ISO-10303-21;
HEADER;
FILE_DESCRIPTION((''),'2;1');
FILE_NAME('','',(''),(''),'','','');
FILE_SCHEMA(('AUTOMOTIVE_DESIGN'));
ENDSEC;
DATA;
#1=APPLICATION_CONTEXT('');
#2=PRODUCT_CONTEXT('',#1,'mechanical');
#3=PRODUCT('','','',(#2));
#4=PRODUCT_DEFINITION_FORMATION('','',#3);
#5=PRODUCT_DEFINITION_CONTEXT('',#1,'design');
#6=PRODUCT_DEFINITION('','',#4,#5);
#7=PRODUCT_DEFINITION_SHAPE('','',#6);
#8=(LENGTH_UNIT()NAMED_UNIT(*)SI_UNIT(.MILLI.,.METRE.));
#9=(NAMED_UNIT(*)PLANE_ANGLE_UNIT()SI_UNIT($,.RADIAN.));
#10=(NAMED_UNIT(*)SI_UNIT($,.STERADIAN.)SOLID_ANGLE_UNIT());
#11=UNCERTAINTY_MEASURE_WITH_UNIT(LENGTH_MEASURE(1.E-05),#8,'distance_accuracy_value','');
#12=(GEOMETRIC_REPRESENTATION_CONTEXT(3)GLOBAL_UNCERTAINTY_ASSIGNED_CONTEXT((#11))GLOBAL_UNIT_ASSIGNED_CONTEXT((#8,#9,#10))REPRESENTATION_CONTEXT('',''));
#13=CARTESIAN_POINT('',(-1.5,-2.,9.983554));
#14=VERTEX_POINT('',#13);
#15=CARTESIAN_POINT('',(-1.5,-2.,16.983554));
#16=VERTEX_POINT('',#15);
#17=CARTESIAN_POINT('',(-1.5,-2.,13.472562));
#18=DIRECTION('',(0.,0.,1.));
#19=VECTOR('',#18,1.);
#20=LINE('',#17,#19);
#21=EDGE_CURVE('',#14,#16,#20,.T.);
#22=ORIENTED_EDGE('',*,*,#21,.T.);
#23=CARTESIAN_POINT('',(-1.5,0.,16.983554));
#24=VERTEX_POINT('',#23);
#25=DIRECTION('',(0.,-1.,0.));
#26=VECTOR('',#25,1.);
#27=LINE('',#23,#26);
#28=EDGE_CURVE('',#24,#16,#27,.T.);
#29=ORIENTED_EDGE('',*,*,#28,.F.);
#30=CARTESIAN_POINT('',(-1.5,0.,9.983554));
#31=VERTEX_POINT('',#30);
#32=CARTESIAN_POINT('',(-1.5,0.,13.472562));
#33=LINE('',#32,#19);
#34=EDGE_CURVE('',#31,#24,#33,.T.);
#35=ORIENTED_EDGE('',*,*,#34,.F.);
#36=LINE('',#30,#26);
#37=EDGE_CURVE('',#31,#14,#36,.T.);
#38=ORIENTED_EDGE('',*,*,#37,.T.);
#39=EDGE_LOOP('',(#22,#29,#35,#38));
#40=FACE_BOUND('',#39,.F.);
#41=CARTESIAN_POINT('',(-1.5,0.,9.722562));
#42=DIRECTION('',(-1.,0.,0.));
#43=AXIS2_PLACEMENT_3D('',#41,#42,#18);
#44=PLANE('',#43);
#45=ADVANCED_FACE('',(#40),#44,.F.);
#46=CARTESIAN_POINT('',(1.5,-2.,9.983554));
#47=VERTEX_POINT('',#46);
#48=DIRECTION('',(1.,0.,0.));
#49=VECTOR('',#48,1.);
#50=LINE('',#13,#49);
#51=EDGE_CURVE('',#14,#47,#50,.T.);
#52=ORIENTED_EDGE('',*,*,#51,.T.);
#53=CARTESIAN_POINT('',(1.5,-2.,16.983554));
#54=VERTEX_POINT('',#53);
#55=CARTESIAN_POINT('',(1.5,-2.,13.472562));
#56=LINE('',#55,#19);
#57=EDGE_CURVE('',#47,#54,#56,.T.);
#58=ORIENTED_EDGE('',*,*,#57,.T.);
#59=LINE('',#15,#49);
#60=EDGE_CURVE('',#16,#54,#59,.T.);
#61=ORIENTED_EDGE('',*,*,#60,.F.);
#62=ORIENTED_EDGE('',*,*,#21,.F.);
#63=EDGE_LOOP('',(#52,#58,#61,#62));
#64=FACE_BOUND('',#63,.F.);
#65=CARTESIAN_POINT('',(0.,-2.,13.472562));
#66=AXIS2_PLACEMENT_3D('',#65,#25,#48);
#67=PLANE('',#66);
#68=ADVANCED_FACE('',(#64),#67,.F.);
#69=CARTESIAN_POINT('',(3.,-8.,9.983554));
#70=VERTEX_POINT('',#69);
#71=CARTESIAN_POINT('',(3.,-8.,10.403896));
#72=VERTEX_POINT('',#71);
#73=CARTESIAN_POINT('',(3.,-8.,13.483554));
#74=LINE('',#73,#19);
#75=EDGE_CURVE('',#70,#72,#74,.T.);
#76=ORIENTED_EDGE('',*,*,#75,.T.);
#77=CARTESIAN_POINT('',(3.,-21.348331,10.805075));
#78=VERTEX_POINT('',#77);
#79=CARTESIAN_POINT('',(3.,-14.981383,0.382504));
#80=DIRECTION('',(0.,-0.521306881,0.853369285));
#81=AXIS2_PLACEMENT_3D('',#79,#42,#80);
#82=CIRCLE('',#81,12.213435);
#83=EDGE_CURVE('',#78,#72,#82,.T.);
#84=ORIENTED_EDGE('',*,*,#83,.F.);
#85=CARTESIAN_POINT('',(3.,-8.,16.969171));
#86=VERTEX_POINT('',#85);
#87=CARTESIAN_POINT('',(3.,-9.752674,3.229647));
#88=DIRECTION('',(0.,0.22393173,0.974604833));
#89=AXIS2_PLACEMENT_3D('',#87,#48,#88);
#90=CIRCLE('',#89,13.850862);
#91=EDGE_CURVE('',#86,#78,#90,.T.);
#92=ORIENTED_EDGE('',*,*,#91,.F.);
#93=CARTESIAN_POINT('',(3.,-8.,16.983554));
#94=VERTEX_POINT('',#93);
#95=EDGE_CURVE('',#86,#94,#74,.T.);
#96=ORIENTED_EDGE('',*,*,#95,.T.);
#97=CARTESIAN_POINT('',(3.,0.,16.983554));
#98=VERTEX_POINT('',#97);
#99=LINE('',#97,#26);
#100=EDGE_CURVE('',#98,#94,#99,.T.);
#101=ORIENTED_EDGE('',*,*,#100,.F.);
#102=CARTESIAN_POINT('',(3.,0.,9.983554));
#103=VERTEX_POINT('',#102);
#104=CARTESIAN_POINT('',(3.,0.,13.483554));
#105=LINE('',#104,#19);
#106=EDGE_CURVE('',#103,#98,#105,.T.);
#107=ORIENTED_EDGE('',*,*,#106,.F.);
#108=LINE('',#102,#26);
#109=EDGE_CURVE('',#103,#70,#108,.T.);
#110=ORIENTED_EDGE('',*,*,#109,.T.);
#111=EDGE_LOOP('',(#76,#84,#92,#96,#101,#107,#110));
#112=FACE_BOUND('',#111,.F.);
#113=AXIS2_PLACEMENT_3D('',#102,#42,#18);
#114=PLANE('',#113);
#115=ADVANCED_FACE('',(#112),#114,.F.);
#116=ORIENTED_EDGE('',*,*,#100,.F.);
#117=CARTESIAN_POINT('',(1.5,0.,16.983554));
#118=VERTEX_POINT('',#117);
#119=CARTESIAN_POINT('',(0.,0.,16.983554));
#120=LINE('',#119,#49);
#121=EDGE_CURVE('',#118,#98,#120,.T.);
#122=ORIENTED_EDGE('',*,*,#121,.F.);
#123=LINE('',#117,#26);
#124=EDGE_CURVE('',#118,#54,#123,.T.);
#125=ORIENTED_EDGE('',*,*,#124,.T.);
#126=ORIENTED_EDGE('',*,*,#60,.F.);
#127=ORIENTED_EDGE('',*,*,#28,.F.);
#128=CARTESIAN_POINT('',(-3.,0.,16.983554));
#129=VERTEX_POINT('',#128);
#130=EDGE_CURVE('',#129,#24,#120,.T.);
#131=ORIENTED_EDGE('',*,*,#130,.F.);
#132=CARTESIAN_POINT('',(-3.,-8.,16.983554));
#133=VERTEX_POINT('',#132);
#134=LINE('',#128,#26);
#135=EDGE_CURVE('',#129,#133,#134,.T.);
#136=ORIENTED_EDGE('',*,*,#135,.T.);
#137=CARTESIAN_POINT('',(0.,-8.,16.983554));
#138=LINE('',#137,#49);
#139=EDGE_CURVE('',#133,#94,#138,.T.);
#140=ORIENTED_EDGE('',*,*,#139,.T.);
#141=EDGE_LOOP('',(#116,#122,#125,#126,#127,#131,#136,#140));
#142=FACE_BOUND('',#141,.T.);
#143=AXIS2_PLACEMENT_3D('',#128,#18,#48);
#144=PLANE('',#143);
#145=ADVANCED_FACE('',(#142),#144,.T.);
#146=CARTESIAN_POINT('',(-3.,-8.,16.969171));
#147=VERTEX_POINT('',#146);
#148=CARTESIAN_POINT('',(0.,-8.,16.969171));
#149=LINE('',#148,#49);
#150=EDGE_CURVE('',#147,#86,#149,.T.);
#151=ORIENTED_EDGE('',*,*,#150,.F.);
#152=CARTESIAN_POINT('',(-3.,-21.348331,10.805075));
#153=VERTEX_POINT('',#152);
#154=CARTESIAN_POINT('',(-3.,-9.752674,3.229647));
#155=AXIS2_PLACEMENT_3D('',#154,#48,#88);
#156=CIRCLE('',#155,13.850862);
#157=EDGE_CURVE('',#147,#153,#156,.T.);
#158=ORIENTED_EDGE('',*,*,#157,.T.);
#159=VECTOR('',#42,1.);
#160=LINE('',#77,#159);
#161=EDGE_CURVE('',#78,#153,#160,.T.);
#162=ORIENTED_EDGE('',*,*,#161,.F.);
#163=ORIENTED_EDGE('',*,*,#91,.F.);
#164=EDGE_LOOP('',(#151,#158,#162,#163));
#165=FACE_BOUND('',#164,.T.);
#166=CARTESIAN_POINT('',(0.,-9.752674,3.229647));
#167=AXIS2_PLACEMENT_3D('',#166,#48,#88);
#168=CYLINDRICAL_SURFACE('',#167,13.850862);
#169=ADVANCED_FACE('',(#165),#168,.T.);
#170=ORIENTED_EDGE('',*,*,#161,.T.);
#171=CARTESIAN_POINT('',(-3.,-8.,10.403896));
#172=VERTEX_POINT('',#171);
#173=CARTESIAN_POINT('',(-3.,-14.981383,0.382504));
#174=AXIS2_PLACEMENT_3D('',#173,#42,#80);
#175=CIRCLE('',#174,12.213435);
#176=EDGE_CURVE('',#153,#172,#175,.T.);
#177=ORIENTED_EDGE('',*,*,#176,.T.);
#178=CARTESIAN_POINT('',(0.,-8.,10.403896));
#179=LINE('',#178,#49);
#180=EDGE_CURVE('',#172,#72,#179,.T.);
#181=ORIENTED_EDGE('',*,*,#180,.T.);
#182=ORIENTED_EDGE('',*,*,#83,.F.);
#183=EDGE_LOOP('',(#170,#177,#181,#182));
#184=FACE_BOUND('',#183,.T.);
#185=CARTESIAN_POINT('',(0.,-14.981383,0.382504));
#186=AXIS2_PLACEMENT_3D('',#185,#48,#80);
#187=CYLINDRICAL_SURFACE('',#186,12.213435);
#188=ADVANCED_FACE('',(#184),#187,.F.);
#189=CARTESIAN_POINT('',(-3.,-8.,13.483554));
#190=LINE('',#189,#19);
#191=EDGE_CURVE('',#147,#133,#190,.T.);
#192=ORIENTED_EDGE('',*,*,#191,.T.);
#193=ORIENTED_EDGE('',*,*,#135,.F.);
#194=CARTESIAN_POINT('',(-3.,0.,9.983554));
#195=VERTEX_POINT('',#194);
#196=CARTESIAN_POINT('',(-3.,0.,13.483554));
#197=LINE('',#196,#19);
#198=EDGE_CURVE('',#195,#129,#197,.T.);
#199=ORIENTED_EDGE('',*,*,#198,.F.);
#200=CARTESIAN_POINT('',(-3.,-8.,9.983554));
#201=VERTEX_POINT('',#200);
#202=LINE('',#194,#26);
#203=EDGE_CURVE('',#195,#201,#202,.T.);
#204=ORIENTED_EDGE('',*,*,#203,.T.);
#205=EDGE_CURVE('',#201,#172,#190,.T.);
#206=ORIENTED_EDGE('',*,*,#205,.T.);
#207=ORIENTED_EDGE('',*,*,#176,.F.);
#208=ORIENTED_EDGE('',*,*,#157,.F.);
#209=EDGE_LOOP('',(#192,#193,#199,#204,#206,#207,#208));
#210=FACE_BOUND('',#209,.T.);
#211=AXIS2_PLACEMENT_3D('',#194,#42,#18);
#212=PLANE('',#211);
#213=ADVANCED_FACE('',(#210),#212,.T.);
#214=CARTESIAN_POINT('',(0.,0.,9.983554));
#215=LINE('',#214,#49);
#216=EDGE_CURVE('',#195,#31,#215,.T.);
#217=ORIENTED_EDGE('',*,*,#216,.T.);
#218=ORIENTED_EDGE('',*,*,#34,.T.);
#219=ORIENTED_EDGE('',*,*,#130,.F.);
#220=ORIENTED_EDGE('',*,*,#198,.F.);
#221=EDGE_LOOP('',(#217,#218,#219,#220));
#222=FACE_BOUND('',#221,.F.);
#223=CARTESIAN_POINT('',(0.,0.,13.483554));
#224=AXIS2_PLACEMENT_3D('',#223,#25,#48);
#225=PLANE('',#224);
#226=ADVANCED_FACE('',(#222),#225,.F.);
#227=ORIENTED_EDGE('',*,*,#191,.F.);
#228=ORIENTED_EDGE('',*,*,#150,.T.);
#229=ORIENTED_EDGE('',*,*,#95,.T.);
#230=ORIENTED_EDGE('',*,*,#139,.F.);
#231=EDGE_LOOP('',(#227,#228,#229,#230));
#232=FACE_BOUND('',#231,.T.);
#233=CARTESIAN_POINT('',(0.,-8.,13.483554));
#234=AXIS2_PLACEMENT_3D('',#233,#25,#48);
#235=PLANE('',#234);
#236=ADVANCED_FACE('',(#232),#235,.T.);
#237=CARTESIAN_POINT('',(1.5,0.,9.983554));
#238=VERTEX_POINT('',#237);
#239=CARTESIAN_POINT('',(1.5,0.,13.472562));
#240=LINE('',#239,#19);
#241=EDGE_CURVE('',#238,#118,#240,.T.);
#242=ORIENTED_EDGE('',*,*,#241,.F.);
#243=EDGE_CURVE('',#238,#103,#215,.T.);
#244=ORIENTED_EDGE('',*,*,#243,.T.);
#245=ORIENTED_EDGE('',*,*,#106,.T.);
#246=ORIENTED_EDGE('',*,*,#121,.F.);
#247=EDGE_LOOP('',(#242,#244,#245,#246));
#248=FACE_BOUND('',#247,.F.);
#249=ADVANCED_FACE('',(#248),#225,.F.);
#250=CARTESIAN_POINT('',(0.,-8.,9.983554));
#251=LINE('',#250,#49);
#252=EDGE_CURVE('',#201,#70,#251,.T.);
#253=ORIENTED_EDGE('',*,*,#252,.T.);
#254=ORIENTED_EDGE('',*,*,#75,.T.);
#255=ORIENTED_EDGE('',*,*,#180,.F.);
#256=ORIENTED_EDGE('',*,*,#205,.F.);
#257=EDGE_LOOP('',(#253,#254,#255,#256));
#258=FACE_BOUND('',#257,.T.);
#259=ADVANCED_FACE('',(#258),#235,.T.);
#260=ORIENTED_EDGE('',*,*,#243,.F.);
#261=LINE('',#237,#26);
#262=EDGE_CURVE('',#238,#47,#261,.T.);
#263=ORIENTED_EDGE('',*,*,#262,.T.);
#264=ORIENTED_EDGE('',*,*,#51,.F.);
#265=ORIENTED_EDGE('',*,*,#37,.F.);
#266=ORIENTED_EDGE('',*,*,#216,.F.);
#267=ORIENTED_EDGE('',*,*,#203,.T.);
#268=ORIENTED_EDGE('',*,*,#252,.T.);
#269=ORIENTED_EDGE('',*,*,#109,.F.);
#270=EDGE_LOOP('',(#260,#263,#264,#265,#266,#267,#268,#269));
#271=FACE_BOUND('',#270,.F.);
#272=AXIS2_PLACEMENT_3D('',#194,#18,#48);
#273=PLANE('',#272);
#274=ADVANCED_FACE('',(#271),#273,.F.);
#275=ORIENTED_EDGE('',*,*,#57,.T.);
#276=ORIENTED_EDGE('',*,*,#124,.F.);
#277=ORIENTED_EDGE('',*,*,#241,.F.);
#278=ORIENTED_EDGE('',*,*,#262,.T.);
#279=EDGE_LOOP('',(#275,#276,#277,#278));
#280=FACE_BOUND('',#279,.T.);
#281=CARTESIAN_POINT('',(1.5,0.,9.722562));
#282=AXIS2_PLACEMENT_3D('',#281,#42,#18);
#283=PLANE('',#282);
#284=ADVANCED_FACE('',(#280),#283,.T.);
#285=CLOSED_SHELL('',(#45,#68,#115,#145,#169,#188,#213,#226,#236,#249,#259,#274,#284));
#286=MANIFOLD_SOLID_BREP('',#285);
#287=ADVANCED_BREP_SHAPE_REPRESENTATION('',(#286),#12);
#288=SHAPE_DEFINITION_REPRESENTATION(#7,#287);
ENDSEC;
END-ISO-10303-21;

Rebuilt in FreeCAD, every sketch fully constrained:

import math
import FreeCAD as App
import Part
import Sketcher
from FreeCAD import Vector
Q = App.Units.Quantity


def add_polygon(sketch, points):
    """Adds a closed chain of lines whose ends are joined by coincident constraints."""
    first, n = sketch.GeometryCount, len(points)
    for a, b in zip(points, points[1:] + points[:1]):
        sketch.addGeometry(Part.LineSegment(App.Vector(*a, 0), App.Vector(*b, 0)), False)
    for i in range(n):
        sketch.addConstraint(Sketcher.Constraint("Coincident", first + i, 2, first + (i + 1) % n, 1))

doc = App.newDocument("Part")
body = doc.addObject("PartDesign::Body", "Body")

sketch1 = body.newObject("Sketcher::SketchObject", "Sketch")
sketch1.AttachmentSupport = (doc.getObject("XZ_Plane"), [""])
sketch1.MapMode = "FlatFace"
add_polygon(sketch1, [(-3, 17), (-3, 10), (3, 10), (3, 17)])
sketch1.addConstraint([
    Sketcher.Constraint("Vertical", 0),
    Sketcher.Constraint("Horizontal", 1),
    Sketcher.Constraint("Vertical", 2),
    Sketcher.Constraint("Horizontal", 3),
    Sketcher.Constraint("DistanceX", 1, 1, 1, 2, Q("6 mm")),
    Sketcher.Constraint("DistanceY", 0, 2, 0, 1, Q("7 mm")),
    Sketcher.Constraint("DistanceX", 0, 2, -1, 1, Q("3 mm")),
    Sketcher.Constraint("DistanceY", -1, 1, 0, 2, Q("9.983554 mm")),
])
pad1 = body.newObject("PartDesign::Pad", "Pad")
pad1.Profile = sketch1
pad1.Length = 8

sketch2 = body.newObject("Sketcher::SketchObject", "Sketch001")
sketch2.AttachmentSupport = (doc.getObject("XZ_Plane"), [""])
sketch2.MapMode = "FlatFace"
add_polygon(sketch2, [(-1.5, 17.2), (-1.5, 9.7), (1.5, 9.7), (1.5, 17.2)])
sketch2.addConstraint([
    Sketcher.Constraint("Vertical", 0),
    Sketcher.Constraint("Horizontal", 1),
    Sketcher.Constraint("Vertical", 2),
    Sketcher.Constraint("Horizontal", 3),
    Sketcher.Constraint("DistanceX", 1, 1, 1, 2, Q("3 mm")),
    Sketcher.Constraint("DistanceY", 0, 2, 0, 1, Q("7.5 mm")),
    Sketcher.Constraint("DistanceX", 0, 2, -1, 1, Q("1.5 mm")),
    Sketcher.Constraint("DistanceY", -1, 1, 2, 2, Q("17.222562 mm")),
])
pocket1 = body.newObject("PartDesign::Pocket", "Pocket")
pocket1.Profile = sketch2
pocket1.Length = 2
pocket1.Reversed = True

sketch3 = body.newObject("Sketcher::SketchObject", "Sketch002")
sketch3.AttachmentSupport = (doc.getObject("YZ_Plane"), [""])
sketch3.MapMode = "FlatFace"
sketch3.addGeometry([
    Part.LineSegment(Vector(-8, 10, 0), Vector(-7, 17, 0)),
    Part.ArcOfCircle(Part.Circle(Vector(-10, 3, 0), Vector(0, 0, 1), 14), math.radians(77), math.radians(147)),
    Part.ArcOfCircle(Part.Circle(Vector(-15, 0, 0), Vector(0, 0, 1), 12), math.radians(54), math.radians(121)),
], False)
sketch3.addConstraint([
    Sketcher.Constraint("Coincident", 0, 2, 1, 1),
    Sketcher.Constraint("Coincident", 1, 2, 2, 2),
    Sketcher.Constraint("Coincident", 2, 1, 0, 1),
    Sketcher.Constraint("Radius", 1, Q("13.850862 mm")),
    Sketcher.Constraint("Radius", 2, Q("12.213435 mm")),
    Sketcher.Constraint("DistanceX", 1, 2, -1, 1, Q("21.348331 mm")),
    Sketcher.Constraint("DistanceY", -1, 1, 2, 1, Q("10.309412 mm")),
    Sketcher.Constraint("DistanceX", 2, 3, 1, 3, Q("5.22871 mm")),
    Sketcher.Constraint("DistanceY", 2, 3, 0, 2, Q("16.34626 mm")),
    Sketcher.Constraint("DistanceY", 2, 3, 1, 2, Q("10.422571 mm")),
    Sketcher.Constraint("DistanceX", 1, 3, 2, 1, Q("1.886381 mm")),
])
pad2 = body.newObject("PartDesign::Pad", "Pad001")
pad2.Profile = sketch3
pad2.Length = 6
pad2.Midplane = True

doc.recompute()
